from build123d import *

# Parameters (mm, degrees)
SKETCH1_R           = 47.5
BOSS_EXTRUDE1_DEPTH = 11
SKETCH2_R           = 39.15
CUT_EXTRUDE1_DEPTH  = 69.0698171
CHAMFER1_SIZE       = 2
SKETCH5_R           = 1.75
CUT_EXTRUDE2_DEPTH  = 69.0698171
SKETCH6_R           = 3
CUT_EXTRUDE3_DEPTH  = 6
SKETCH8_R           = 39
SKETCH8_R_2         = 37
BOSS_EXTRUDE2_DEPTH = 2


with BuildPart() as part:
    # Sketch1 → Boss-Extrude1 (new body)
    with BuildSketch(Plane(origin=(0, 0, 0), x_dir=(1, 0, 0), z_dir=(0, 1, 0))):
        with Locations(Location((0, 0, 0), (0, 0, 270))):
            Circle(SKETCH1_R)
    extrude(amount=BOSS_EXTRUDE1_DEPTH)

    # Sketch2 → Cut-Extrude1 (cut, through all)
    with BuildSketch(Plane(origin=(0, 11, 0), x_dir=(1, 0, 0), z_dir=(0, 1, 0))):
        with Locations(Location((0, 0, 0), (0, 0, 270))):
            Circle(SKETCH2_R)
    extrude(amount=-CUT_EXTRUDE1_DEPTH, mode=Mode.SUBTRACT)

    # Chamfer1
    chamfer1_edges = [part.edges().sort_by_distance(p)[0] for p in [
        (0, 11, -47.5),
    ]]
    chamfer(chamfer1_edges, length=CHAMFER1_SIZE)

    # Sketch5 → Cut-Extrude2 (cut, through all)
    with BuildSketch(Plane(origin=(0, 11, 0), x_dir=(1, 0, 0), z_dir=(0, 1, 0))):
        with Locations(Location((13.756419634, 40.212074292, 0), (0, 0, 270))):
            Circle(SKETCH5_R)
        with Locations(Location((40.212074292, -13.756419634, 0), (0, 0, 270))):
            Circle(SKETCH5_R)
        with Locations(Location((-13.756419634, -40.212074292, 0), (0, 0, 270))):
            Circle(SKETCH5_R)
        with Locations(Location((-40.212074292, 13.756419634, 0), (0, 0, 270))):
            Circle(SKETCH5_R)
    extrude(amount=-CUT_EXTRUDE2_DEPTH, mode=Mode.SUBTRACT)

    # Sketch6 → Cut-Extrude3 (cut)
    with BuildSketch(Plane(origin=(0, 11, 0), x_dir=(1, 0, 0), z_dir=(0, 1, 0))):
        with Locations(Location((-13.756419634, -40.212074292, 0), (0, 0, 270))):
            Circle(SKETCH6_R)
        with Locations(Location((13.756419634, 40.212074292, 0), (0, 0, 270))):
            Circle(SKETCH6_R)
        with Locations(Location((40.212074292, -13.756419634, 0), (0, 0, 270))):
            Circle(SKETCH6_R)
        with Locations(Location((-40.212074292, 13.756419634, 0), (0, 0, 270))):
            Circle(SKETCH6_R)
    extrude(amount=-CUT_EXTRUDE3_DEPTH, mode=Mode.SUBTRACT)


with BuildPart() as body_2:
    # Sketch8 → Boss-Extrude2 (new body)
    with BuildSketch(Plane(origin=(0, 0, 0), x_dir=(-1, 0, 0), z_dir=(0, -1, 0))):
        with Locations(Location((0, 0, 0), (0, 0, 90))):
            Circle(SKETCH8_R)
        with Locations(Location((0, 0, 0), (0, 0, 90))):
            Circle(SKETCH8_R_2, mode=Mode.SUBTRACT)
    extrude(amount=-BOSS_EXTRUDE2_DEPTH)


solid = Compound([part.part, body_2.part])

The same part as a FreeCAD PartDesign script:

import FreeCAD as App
import Part
import Sketcher

V = App.Vector


def edges_at(feature, points):
    """Names of the edges that pass closest to the given points."""
    edges = feature.Shape.Edges
    near = lambda p: min(range(len(edges)), key=lambda i: edges[i].distToShape(Part.Vertex(*p))[0])
    return sorted({f"Edge{near(p) + 1}" for p in points})

doc = App.newDocument("Part")
body = doc.addObject("PartDesign::Body", "Body")

# Sketch on XZ plane
sketch1 = doc.addObject("Sketcher::SketchObject", "Sketch")
body.addObject(sketch1)
sketch1.AttachmentSupport = (doc.XZ_Plane, [""])
sketch1.MapMode = "FlatFace"
sketch1.addGeometry(Part.Circle(V(0, 0, 0), V(0, 0, 1), 48), False)
sketch1.addConstraint([
    Sketcher.Constraint("Coincident", 0, 3, -1, 1),
    Sketcher.Constraint("Diameter", 0, 95.0),
])
pad1 = doc.addObject("PartDesign::Pad", "Pad")
body.addObject(pad1)
pad1.Profile = sketch1
pad1.Length = 11
pad1.Reversed = True

# Sketch on XZ plane
sketch2 = doc.addObject("Sketcher::SketchObject", "Sketch001")
body.addObject(sketch2)
sketch2.AttachmentSupport = (doc.XZ_Plane, [""])
sketch2.MapMode = "FlatFace"
sketch2.AttachmentOffset = App.Placement(V(0, 0, -11), App.Rotation())
sketch2.addGeometry(Part.Circle(V(0, 0, 0), V(0, 0, 1), 39), False)
sketch2.addConstraint([
    Sketcher.Constraint("Coincident", 0, 3, -1, 1),
    Sketcher.Constraint("Diameter", 0, 78.3),
])
pocket1 = doc.addObject("PartDesign::Pocket", "Pocket")
body.addObject(pocket1)
pocket1.Profile = sketch2
pocket1.Type = "ThroughAll"
pocket1.Reversed = True
doc.recompute()

chamfer = doc.addObject("PartDesign::Chamfer", "Chamfer")
body.addObject(chamfer)
chamfer.Base = (pocket1, edges_at(pocket1, [(0, 11, -47.5)]))
chamfer.Size = 2

# Sketch on XZ plane
sketch3 = doc.addObject("Sketcher::SketchObject", "Sketch002")
body.addObject(sketch3)
sketch3.AttachmentSupport = (doc.XZ_Plane, [""])
sketch3.MapMode = "FlatFace"
sketch3.AttachmentOffset = App.Placement(V(0, 0, -11), App.Rotation())
sketch3.addGeometry([
    Part.Circle(V(13.8, -40.2, 0), V(0, 0, 1), 1.8),
    Part.Circle(V(40.2, 13.8, 0), V(0, 0, 1), 1.8),
    Part.Circle(V(-13.8, 40.2, 0), V(0, 0, 1), 1.8),
    Part.Circle(V(-40.2, -13.8, 0), V(0, 0, 1), 1.8),
], False)
sketch3.addConstraint([
    Sketcher.Constraint("Equal", 0, 1),
    Sketcher.Constraint("Equal", 1, 2),
    Sketcher.Constraint("Equal", 2, 3),
    Sketcher.Constraint("Symmetric", 0, 3, 2, 3, -1, 1),
    Sketcher.Constraint("Symmetric", 1, 3, 3, 3, -1, 1),
    Sketcher.Constraint("Diameter", 0, 3.5),
    Sketcher.Constraint("DistanceX", -1, 1, 0, 3, 13.75642),
    Sketcher.Constraint("DistanceY", -1, 1, 1, 3, 13.75642),
    Sketcher.Constraint("DistanceY", 0, 3, 2, 3, 80.424149),
    Sketcher.Constraint("DistanceX", 3, 3, 1, 3, 80.424149),
])
pocket2 = doc.addObject("PartDesign::Pocket", "Pocket001")
body.addObject(pocket2)
pocket2.Profile = sketch3
pocket2.Type = "ThroughAll"
pocket2.Reversed = True

# Sketch on XZ plane
sketch4 = doc.addObject("Sketcher::SketchObject", "Sketch003")
body.addObject(sketch4)
sketch4.AttachmentSupport = (doc.XZ_Plane, [""])
sketch4.MapMode = "FlatFace"
sketch4.AttachmentOffset = App.Placement(V(0, 0, -11), App.Rotation())
sketch4.addGeometry([
    Part.Circle(V(-13.8, 40.2, 0), V(0, 0, 1), 3),
    Part.Circle(V(13.8, -40.2, 0), V(0, 0, 1), 3),
    Part.Circle(V(40.2, 13.8, 0), V(0, 0, 1), 3),
    Part.Circle(V(-40.2, -13.8, 0), V(0, 0, 1), 3),
], False)
sketch4.addConstraint([
    Sketcher.Constraint("Equal", 0, 1),
    Sketcher.Constraint("Equal", 1, 2),
    Sketcher.Constraint("Equal", 2, 3),
    Sketcher.Constraint("Symmetric", 0, 3, 1, 3, -1, 1),
    Sketcher.Constraint("Symmetric", 2, 3, 3, 3, -1, 1),
    Sketcher.Constraint("Diameter", 0, 6.0),
    Sketcher.Constraint("DistanceX", 0, 3, -1, 1, 13.75642),
    Sketcher.Constraint("DistanceY", -1, 1, 2, 3, 13.75642),
    Sketcher.Constraint("DistanceY", 1, 3, 0, 3, 80.424149),
    Sketcher.Constraint("DistanceX", 3, 3, 2, 3, 80.424149),
])
pocket3 = doc.addObject("PartDesign::Pocket", "Pocket002")
body.addObject(pocket3)
pocket3.Profile = sketch4
pocket3.Length = 6
pocket3.Reversed = True
body2 = doc.addObject("PartDesign::Body", "Body001")

# Sketch on XZ plane
sketch5 = doc.addObject("Sketcher::SketchObject", "Sketch004")
body2.addObject(sketch5)
sketch5.AttachmentSupport = (doc.getObject("XZ_Plane001"), [""])
sketch5.MapMode = "FlatFace"
sketch5.addGeometry([
    Part.Circle(V(0, 0, 0), V(0, 0, 1), 39),
    Part.Circle(V(0, 0, 0), V(0, 0, 1), 37),
], False)
sketch5.addConstraint([
    Sketcher.Constraint("Coincident", 0, 3, -1, 1),
    Sketcher.Constraint("Coincident", 1, 3, -1, 1),
    Sketcher.Constraint("Diameter", 0, 78.0),
    Sketcher.Constraint("Diameter", 1, 74.0),
])
pad2 = doc.addObject("PartDesign::Pad", "Pad001")
body2.addObject(pad2)
pad2.Profile = sketch5
pad2.Length = 2
pad2.Reversed = True

doc.recompute()
